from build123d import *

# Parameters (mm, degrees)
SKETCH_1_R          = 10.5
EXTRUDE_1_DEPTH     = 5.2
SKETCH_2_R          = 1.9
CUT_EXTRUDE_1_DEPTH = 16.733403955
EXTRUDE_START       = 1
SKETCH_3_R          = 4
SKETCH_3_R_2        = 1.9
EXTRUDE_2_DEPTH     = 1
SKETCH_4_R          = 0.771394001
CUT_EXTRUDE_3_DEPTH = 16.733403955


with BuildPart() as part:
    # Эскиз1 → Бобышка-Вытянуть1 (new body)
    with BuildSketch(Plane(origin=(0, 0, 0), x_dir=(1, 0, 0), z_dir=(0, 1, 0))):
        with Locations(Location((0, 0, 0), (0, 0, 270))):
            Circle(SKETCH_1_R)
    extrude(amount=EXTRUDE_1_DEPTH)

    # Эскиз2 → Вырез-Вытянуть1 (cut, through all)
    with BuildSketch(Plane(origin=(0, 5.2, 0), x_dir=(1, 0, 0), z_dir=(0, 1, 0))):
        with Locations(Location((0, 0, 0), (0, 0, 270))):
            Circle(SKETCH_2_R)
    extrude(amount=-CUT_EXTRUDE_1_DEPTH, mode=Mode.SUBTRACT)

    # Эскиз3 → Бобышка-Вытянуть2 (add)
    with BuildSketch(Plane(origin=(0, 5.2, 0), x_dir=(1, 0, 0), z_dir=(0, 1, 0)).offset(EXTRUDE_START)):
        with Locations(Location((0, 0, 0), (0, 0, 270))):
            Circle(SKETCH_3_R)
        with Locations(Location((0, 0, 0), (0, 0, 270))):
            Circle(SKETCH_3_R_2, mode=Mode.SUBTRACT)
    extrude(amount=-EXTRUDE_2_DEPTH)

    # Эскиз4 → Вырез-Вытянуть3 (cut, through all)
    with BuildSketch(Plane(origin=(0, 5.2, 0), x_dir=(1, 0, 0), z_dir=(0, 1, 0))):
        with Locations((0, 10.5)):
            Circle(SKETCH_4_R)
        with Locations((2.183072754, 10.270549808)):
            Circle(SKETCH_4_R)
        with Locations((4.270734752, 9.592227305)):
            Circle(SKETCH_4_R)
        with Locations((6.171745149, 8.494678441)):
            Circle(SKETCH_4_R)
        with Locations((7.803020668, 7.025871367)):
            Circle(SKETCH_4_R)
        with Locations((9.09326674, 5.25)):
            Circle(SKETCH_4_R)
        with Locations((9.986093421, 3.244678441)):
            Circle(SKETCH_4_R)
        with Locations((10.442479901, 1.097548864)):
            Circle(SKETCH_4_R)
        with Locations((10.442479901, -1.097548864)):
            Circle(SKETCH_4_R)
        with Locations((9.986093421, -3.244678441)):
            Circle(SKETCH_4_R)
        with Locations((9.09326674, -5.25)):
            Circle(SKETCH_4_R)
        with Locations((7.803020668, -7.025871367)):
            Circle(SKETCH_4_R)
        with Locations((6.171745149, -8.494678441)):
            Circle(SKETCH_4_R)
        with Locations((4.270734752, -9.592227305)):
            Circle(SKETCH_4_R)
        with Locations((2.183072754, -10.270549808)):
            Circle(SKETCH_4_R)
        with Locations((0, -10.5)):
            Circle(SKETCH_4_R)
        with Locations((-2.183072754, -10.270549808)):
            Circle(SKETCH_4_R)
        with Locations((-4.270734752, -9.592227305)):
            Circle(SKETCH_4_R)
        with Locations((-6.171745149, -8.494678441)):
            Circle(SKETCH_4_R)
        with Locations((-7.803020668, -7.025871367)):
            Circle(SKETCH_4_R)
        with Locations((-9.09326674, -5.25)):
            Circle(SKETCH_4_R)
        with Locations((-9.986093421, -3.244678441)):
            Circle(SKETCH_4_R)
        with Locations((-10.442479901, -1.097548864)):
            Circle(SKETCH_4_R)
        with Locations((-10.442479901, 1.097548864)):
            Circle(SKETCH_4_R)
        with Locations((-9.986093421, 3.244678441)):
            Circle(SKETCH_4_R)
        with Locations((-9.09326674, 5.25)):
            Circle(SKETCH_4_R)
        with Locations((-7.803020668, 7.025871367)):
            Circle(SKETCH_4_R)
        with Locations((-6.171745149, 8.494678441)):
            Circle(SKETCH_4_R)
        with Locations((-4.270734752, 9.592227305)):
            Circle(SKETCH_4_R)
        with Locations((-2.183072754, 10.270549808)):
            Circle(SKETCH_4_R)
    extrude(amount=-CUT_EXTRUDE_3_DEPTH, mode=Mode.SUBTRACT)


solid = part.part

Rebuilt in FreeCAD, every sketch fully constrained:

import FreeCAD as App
import Part
import Sketcher
from FreeCAD import Vector

doc = App.newDocument("Part")
body = doc.addObject("PartDesign::Body", "Body")

# Sketch on XZ plane
sketch1 = doc.addObject("Sketcher::SketchObject", "Sketch")
body.addObject(sketch1)
sketch1.AttachmentSupport = (doc.XZ_Plane, [""])
sketch1.MapMode = "FlatFace"
sketch1.addGeometry(Part.Circle(Vector(0, 0, 0), Vector(0, 0, 1), 10), False)
sketch1.addConstraint(Sketcher.Constraint("Coincident", 0, 3, -1, 1))
sketch1.addConstraint(Sketcher.Constraint("Diameter", 0, 21.0))
pad1 = doc.addObject("PartDesign::Pad", "Pad")
body.addObject(pad1)
pad1.Profile = sketch1
pad1.Length = 5.2
pad1.Reversed = True

# Sketch on XZ plane
sketch2 = doc.addObject("Sketcher::SketchObject", "Sketch001")
body.addObject(sketch2)
sketch2.AttachmentSupport = (doc.XZ_Plane, [""])
sketch2.MapMode = "FlatFace"
sketch2.AttachmentOffset = App.Placement(Vector(0, 0, -5.2), App.Rotation())
sketch2.addGeometry(Part.Circle(Vector(0, 0, 0), Vector(0, 0, 1), 1.9), False)
sketch2.addConstraint(Sketcher.Constraint("Coincident", 0, 3, -1, 1))
sketch2.addConstraint(Sketcher.Constraint("Diameter", 0, 3.8))
pocket1 = doc.addObject("PartDesign::Pocket", "Pocket")
body.addObject(pocket1)
pocket1.Profile = sketch2
pocket1.Type = "ThroughAll"
pocket1.Reversed = True

# Sketch on XZ plane
sketch3 = doc.addObject("Sketcher::SketchObject", "Sketch002")
body.addObject(sketch3)
sketch3.AttachmentSupport = (doc.XZ_Plane, [""])
sketch3.MapMode = "FlatFace"
sketch3.AttachmentOffset = App.Placement(Vector(0, 0, -6.2), App.Rotation())
sketch3.addGeometry(Part.Circle(Vector(0, 0, 0), Vector(0, 0, 1), 4), False)
sketch3.addGeometry(Part.Circle(Vector(0, 0, 0), Vector(0, 0, 1), 1.9), False)
sketch3.addConstraint(Sketcher.Constraint("Coincident", 0, 3, -1, 1))
sketch3.addConstraint(Sketcher.Constraint("Coincident", 1, 3, -1, 1))
sketch3.addConstraint(Sketcher.Constraint("Diameter", 0, 8.0))
sketch3.addConstraint(Sketcher.Constraint("Diameter", 1, 3.8))
pad2 = doc.addObject("PartDesign::Pad", "Pad001")
body.addObject(pad2)
pad2.Profile = sketch3
pad2.Length = 1

# Sketch on XZ plane
sketch4 = doc.addObject("Sketcher::SketchObject", "Sketch003")
body.addObject(sketch4)
sketch4.AttachmentSupport = (doc.XZ_Plane, [""])
sketch4.MapMode = "FlatFace"
sketch4.AttachmentOffset = App.Placement(Vector(0, 0, -5.2), App.Rotation())
sketch4.addGeometry(Part.Circle(Vector(0, -10.5, 0), Vector(0, 0, 1), 0.8), False)
sketch4.addGeometry(Part.Circle(Vector(2.2, -10.3, 0), Vector(0, 0, 1), 0.8), False)
sketch4.addGeometry(Part.Circle(Vector(4.3, -9.6, 0), Vector(0, 0, 1), 0.8), False)
sketch4.addGeometry(Part.Circle(Vector(6.2, -8.5, 0), Vector(0, 0, 1), 0.8), False)
sketch4.addGeometry(Part.Circle(Vector(7.8, -7, 0), Vector(0, 0, 1), 0.8), False)
sketch4.addGeometry(Part.Circle(Vector(9.1, -5.2, 0), Vector(0, 0, 1), 0.8), False)
sketch4.addGeometry(Part.Circle(Vector(10, -3.2, 0), Vector(0, 0, 1), 0.8), False)
sketch4.addGeometry(Part.Circle(Vector(10.4, -1.1, 0), Vector(0, 0, 1), 0.8), False)
sketch4.addGeometry(Part.Circle(Vector(10.4, 1.1, 0), Vector(0, 0, 1), 0.8), False)
sketch4.addGeometry(Part.Circle(Vector(10, 3.2, 0), Vector(0, 0, 1), 0.8), False)
sketch4.addGeometry(Part.Circle(Vector(9.1, 5.2, 0), Vector(0, 0, 1), 0.8), False)
sketch4.addGeometry(Part.Circle(Vector(7.8, 7, 0), Vector(0, 0, 1), 0.8), False)
sketch4.addGeometry(Part.Circle(Vector(6.2, 8.5, 0), Vector(0, 0, 1), 0.8), False)
sketch4.addGeometry(Part.Circle(Vector(4.3, 9.6, 0), Vector(0, 0, 1), 0.8), False)
sketch4.addGeometry(Part.Circle(Vector(2.2, 10.3, 0), Vector(0, 0, 1), 0.8), False)
sketch4.addGeometry(Part.Circle(Vector(0, 10.5, 0), Vector(0, 0, 1), 0.8), False)
sketch4.addGeometry(Part.Circle(Vector(-2.2, 10.3, 0), Vector(0, 0, 1), 0.8), False)
sketch4.addGeometry(Part.Circle(Vector(-4.3, 9.6, 0), Vector(0, 0, 1), 0.8), False)
sketch4.addGeometry(Part.Circle(Vector(-6.2, 8.5, 0), Vector(0, 0, 1), 0.8), False)
sketch4.addGeometry(Part.Circle(Vector(-7.8, 7, 0), Vector(0, 0, 1), 0.8), False)
sketch4.addGeometry(Part.Circle(Vector(-9.1, 5.2, 0), Vector(0, 0, 1), 0.8), False)
sketch4.addGeometry(Part.Circle(Vector(-10, 3.2, 0), Vector(0, 0, 1), 0.8), False)
sketch4.addGeometry(Part.Circle(Vector(-10.4, 1.1, 0), Vector(0, 0, 1), 0.8), False)
sketch4.addGeometry(Part.Circle(Vector(-10.4, -1.1, 0), Vector(0, 0, 1), 0.8), False)
sketch4.addGeometry(Part.Circle(Vector(-10, -3.2, 0), Vector(0, 0, 1), 0.8), False)
sketch4.addGeometry(Part.Circle(Vector(-9.1, -5.2, 0), Vector(0, 0, 1), 0.8), False)
sketch4.addGeometry(Part.Circle(Vector(-7.8, -7, 0), Vector(0, 0, 1), 0.8), False)
sketch4.addGeometry(Part.Circle(Vector(-6.2, -8.5, 0), Vector(0, 0, 1), 0.8), False)
sketch4.addGeometry(Part.Circle(Vector(-4.3, -9.6, 0), Vector(0, 0, 1), 0.8), False)
sketch4.addGeometry(Part.Circle(Vector(-2.2, -10.3, 0), Vector(0, 0, 1), 0.8), False)
sketch4.addConstraint(Sketcher.Constraint("Equal", 0, 1))
sketch4.addConstraint(Sketcher.Constraint("Equal", 1, 2))
sketch4.addConstraint(Sketcher.Constraint("Equal", 2, 3))
sketch4.addConstraint(Sketcher.Constraint("Equal", 3, 4))
sketch4.addConstraint(Sketcher.Constraint("Equal", 4, 5))
sketch4.addConstraint(Sketcher.Constraint("Equal", 5, 6))
sketch4.addConstraint(Sketcher.Constraint("Equal", 6, 7))
sketch4.addConstraint(Sketcher.Constraint("Equal", 7, 8))
sketch4.addConstraint(Sketcher.Constraint("Equal", 8, 9))
sketch4.addConstraint(Sketcher.Constraint("Equal", 9, 10))
sketch4.addConstraint(Sketcher.Constraint("Equal", 10, 11))
sketch4.addConstraint(Sketcher.Constraint("Equal", 11, 12))
sketch4.addConstraint(Sketcher.Constraint("Equal", 12, 13))
sketch4.addConstraint(Sketcher.Constraint("Equal", 13, 14))
sketch4.addConstraint(Sketcher.Constraint("Equal", 14, 15))
sketch4.addConstraint(Sketcher.Constraint("Equal", 15, 16))
sketch4.addConstraint(Sketcher.Constraint("Equal", 16, 17))
sketch4.addConstraint(Sketcher.Constraint("Equal", 17, 18))
sketch4.addConstraint(Sketcher.Constraint("Equal", 18, 19))
sketch4.addConstraint(Sketcher.Constraint("Equal", 19, 20))
sketch4.addConstraint(Sketcher.Constraint("Equal", 20, 21))
sketch4.addConstraint(Sketcher.Constraint("Equal", 21, 22))
sketch4.addConstraint(Sketcher.Constraint("Equal", 22, 23))
sketch4.addConstraint(Sketcher.Constraint("Equal", 23, 24))
sketch4.addConstraint(Sketcher.Constraint("Equal", 24, 25))
sketch4.addConstraint(Sketcher.Constraint("Equal", 25, 26))
sketch4.addConstraint(Sketcher.Constraint("Equal", 26, 27))
sketch4.addConstraint(Sketcher.Constraint("Equal", 27, 28))
sketch4.addConstraint(Sketcher.Constraint("Equal", 28, 29))
sketch4.addConstraint(Sketcher.Constraint("Symmetric", 0, 3, 15, 3, -1, 1))
sketch4.addConstraint(Sketcher.Constraint("Symmetric", 1, 3, 16, 3, -1, 1))
sketch4.addConstraint(Sketcher.Constraint("Symmetric", 2, 3, 17, 3, -1, 1))
sketch4.addConstraint(Sketcher.Constraint("Symmetric", 3, 3, 18, 3, -1, 1))
sketch4.addConstraint(Sketcher.Constraint("Symmetric", 4, 3, 19, 3, -1, 1))
sketch4.addConstraint(Sketcher.Constraint("Symmetric", 5, 3, 20, 3, -1, 1))
sketch4.addConstraint(Sketcher.Constraint("Symmetric", 6, 3, 21, 3, -1, 1))
sketch4.addConstraint(Sketcher.Constraint("Symmetric", 7, 3, 22, 3, -1, 1))
sketch4.addConstraint(Sketcher.Constraint("Symmetric", 8, 3, 23, 3, -1, 1))
sketch4.addConstraint(Sketcher.Constraint("Symmetric", 9, 3, 24, 3, -1, 1))
sketch4.addConstraint(Sketcher.Constraint("Symmetric", 10, 3, 25, 3, -1, 1))
sketch4.addConstraint(Sketcher.Constraint("Symmetric", 11, 3, 26, 3, -1, 1))
sketch4.addConstraint(Sketcher.Constraint("Symmetric", 12, 3, 27, 3, -1, 1))
sketch4.addConstraint(Sketcher.Constraint("Symmetric", 13, 3, 28, 3, -1, 1))
sketch4.addConstraint(Sketcher.Constraint("Symmetric", 14, 3, 29, 3, -1, 1))
sketch4.addConstraint(Sketcher.Constraint("Symmetric", 14, 3, 16, 3, -2))
sketch4.addConstraint(Sketcher.Constraint("Symmetric", 13, 3, 17, 3, -2))
sketch4.addConstraint(Sketcher.Constraint("Symmetric", 12, 3, 18, 3, -2))
sketch4.addConstraint(Sketcher.Constraint("Symmetric", 11, 3, 19, 3, -2))
sketch4.addConstraint(Sketcher.Constraint("Symmetric", 10, 3, 20, 3, -2))
sketch4.addConstraint(Sketcher.Constraint("Symmetric", 9, 3, 21, 3, -2))
sketch4.addConstraint(Sketcher.Constraint("Symmetric", 8, 3, 22, 3, -2))
sketch4.addConstraint(Sketcher.Constraint("PointOnObject", 0, 3, -2))
sketch4.addConstraint(Sketcher.Constraint("DistanceY", 0, 3, -1, 1, 10.5))
sketch4.addConstraint(Sketcher.Constraint("DistanceY", 5, 3, 10, 3, 10.5))
sketch4.addConstraint(Sketcher.Constraint("Diameter", 0, 1.542788))
sketch4.addConstraint(Sketcher.Constraint("DistanceY", 3, 3, 6, 3, 5.25))
sketch4.addConstraint(Sketcher.Constraint("DistanceY", 1, 3, -1, 1, 10.27055))
sketch4.addConstraint(Sketcher.Constraint("DistanceY", 3, 3, -1, 1, 8.494678))
sketch4.addConstraint(Sketcher.Constraint("DistanceX", -1, 1, 4, 3, 7.803021))
sketch4.addConstraint(Sketcher.Constraint("DistanceY", 4, 3, -1, 1, 7.025871))
sketch4.addConstraint(Sketcher.Constraint("DistanceX", -1, 1, 7, 3, 10.44248))
sketch4.addConstraint(Sketcher.Constraint("DistanceY", 7, 3, -1, 1, 1.097549))
sketch4.addConstraint(Sketcher.Constraint("DistanceX", 1, 3, 2, 3, 2.087662))
sketch4.addConstraint(Sketcher.Constraint("DistanceX", 2, 3, 3, 3, 1.90101))
sketch4.addConstraint(Sketcher.Constraint("DistanceY", 2, 3, 3, 3, 1.097549))
sketch4.addConstraint(Sketcher.Constraint("DistanceX", 3, 3, 5, 3, 2.921522))
sketch4.addConstraint(Sketcher.Constraint("DistanceX", 3, 3, 6, 3, 3.814348))
sketch4.addConstraint(Sketcher.Constraint("DistanceX", 17, 3, 13, 3, 8.54147))
pocket2 = doc.addObject("PartDesign::Pocket", "Pocket001")
body.addObject(pocket2)
pocket2.Profile = sketch4
pocket2.Type = "ThroughAll"
pocket2.Reversed = True

doc.recompute()
